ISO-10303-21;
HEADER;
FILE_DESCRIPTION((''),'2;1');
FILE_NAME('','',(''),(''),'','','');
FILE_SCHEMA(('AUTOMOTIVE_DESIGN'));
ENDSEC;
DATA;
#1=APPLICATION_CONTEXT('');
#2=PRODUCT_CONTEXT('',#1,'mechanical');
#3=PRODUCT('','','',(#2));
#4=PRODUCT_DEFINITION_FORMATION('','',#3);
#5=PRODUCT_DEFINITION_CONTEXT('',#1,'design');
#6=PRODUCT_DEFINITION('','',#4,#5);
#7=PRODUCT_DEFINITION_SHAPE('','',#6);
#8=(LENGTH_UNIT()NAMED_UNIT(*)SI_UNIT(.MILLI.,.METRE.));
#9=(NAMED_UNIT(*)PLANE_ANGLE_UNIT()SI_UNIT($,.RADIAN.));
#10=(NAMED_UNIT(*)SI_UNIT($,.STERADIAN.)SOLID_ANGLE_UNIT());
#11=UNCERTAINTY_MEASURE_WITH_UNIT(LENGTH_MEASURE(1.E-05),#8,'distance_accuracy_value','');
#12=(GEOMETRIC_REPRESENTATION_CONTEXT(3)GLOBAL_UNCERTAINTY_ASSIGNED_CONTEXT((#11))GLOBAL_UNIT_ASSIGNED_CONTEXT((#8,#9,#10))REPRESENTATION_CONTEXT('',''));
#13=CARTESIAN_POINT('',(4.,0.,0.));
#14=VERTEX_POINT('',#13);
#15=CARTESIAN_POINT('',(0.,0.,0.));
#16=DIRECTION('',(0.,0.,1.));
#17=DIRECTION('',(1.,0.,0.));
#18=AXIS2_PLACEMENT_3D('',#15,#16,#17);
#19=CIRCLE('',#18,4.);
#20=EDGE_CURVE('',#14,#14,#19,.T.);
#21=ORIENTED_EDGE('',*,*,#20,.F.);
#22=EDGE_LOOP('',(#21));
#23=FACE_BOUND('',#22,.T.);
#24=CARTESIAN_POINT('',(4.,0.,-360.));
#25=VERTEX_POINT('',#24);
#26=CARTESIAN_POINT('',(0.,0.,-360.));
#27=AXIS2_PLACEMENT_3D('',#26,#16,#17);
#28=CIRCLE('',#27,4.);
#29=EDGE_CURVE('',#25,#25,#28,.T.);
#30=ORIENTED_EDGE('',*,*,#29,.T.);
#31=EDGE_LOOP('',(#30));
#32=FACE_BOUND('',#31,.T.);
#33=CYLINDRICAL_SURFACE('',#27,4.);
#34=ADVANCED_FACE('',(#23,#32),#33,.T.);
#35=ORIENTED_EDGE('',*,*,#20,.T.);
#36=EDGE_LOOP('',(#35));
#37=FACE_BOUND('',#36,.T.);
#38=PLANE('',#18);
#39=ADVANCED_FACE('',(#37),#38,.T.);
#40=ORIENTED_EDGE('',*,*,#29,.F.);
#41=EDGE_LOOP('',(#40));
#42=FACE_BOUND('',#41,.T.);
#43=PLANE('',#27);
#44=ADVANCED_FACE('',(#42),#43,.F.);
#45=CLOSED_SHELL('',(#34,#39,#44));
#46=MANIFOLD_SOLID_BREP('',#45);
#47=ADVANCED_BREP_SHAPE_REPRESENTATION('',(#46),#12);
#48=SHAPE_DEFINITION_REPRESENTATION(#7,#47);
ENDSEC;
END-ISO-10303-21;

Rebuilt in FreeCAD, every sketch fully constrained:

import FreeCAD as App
import Part
import Sketcher

V = App.Vector

doc = App.newDocument("Part")
params = doc.addObject("Spreadsheet::Sheet", "Params")
for row, (alias, value) in enumerate([
    ("sketch1_diameter", "8 mm"),
    ("sketch2_height", "360 mm"),
], start=1):
    params.set(f"A{row}", alias)
    params.set(f"B{row}", "=" + value)
    params.setAlias(f"B{row}", alias)

body = doc.addObject("PartDesign::Body", "Body")

sketch1 = body.newObject("Sketcher::SketchObject", "Sketch")
sketch1.AttachmentSupport = (doc.getObject("XY_Plane"), [""])
sketch1.MapMode = "FlatFace"
sketch1.addGeometry(Part.Circle(V(0, 0, 0), V(0, 0, 1), 4), False)
sketch1.addConstraint(Sketcher.Constraint("Coincident", 0, 3, -1, 1))
sketch1.addConstraint(Sketcher.Constraint("Diameter", 0, 8.0))
sketch1.setExpression("Constraints[1]", "Params.sketch1_diameter")

sketch2 = body.newObject("Sketcher::SketchObject", "Sketch001")
sketch2.AttachmentSupport = (doc.getObject("XZ_Plane"), [""])
sketch2.MapMode = "FlatFace"
sketch2.addGeometry(Part.LineSegment(V(0, 0, 0), V(0, -360, 0)), False)
sketch2.addConstraint(Sketcher.Constraint("Vertical", 0))
sketch2.addConstraint(Sketcher.Constraint("Coincident", 0, 1, -1, 1))
sketch2.addConstraint(Sketcher.Constraint("DistanceY", 0, 2, 0, 1, 360.0))
sketch2.setExpression("Constraints[2]", "Params.sketch2_height")
doc.recompute()

additivepipe = body.newObject("PartDesign::AdditivePipe", "AdditivePipe")
additivepipe.Profile = sketch1
additivepipe.Spine = (sketch2, ["Edge1"])

doc.recompute()
